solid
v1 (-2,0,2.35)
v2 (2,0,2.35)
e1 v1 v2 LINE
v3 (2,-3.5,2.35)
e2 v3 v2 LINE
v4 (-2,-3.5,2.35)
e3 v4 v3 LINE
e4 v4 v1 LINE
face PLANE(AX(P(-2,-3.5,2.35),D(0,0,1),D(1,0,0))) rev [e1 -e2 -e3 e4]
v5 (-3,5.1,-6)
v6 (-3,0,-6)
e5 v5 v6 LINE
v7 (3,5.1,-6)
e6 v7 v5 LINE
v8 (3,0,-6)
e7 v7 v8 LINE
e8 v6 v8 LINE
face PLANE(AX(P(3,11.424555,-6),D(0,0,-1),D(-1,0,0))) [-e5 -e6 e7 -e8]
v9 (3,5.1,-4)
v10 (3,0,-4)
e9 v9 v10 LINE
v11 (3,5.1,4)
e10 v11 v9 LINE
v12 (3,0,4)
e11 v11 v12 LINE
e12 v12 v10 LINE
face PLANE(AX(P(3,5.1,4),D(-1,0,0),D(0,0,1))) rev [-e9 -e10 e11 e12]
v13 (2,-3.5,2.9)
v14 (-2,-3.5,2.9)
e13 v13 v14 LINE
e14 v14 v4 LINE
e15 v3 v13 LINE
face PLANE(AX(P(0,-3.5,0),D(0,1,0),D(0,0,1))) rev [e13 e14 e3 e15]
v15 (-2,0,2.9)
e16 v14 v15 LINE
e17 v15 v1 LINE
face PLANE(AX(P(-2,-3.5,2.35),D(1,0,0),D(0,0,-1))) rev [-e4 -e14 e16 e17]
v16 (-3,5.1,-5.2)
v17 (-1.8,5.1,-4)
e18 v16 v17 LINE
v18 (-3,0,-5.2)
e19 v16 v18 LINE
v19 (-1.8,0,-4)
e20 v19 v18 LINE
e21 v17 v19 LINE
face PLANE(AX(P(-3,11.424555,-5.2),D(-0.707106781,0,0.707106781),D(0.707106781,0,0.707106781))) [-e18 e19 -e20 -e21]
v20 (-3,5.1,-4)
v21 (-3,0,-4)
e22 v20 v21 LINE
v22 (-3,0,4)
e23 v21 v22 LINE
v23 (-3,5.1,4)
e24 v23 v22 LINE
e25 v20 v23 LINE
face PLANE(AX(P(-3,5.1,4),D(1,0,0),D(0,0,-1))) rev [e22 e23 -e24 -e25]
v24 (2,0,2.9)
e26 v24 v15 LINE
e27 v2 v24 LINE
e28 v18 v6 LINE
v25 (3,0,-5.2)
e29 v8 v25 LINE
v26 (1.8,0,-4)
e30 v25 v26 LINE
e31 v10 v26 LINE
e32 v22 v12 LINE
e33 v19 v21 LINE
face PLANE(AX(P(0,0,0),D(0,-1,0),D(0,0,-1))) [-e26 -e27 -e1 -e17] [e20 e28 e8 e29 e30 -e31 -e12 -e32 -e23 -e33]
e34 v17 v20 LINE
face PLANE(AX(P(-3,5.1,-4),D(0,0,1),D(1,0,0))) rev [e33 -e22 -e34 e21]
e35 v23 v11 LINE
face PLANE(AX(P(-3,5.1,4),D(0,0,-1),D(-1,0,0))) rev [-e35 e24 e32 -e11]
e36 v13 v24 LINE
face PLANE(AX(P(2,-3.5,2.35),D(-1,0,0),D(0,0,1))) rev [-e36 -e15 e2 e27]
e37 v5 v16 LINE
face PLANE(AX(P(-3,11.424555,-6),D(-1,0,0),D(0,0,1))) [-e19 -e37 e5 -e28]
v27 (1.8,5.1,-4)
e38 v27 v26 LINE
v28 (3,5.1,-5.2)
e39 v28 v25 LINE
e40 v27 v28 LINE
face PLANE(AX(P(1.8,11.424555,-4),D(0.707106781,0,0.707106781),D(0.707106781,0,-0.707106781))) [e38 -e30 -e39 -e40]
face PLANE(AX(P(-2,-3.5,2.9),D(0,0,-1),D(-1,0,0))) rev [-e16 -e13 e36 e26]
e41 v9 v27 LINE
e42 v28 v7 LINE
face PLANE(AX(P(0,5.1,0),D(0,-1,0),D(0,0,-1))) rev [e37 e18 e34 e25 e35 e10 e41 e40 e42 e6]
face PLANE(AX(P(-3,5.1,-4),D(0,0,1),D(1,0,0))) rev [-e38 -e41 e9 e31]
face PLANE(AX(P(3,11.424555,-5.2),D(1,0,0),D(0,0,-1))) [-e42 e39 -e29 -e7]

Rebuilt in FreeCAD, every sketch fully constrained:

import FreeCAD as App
import Part
import Sketcher
from FreeCAD import Vector


def add_polygon(sketch, points):
    """Adds a closed chain of lines whose ends are joined by coincident constraints."""
    first, n = sketch.GeometryCount, len(points)
    for a, b in zip(points, points[1:] + points[:1]):
        sketch.addGeometry(Part.LineSegment(App.Vector(*a, 0), App.Vector(*b, 0)), False)
    for i in range(n):
        sketch.addConstraint(Sketcher.Constraint("Coincident", first + i, 2, first + (i + 1) % n, 1))

doc = App.newDocument("Part")
body = doc.addObject("PartDesign::Body", "Body")

# Sketch on XZ plane
sketch1 = body.newObject("Sketcher::SketchObject", "Sketch")
sketch1.AttachmentSupport = (doc.getObject("XZ_Plane"), [""])
sketch1.MapMode = "FlatFace"
add_polygon(sketch1, [(-3, -4), (-3, 4), (3, 4), (3, -4)])  # lines 0-3
sketch1.addConstraint(Sketcher.Constraint("Vertical", 0))
sketch1.addConstraint(Sketcher.Constraint("Horizontal", 1))
sketch1.addConstraint(Sketcher.Constraint("Vertical", 2))
sketch1.addConstraint(Sketcher.Constraint("Horizontal", 3))
sketch1.addConstraint(Sketcher.Constraint("Symmetric", 0, 2, 2, 2, -1, 1))
sketch1.addConstraint(Sketcher.Constraint("DistanceX", 1, 1, 1, 2, 6.0))
sketch1.addConstraint(Sketcher.Constraint("DistanceY", 0, 1, 0, 2, 8.0))
pad1 = body.newObject("PartDesign::Pad", "Pad")
pad1.Profile = sketch1
pad1.Length = 5.1
pad1.Reversed = True

# Sketch on XZ plane
sketch2 = body.newObject("Sketcher::SketchObject", "Sketch001")
sketch2.AttachmentSupport = (doc.getObject("XZ_Plane"), [""])
sketch2.MapMode = "FlatFace"
add_polygon(sketch2, [(-3, -6), (3, -6), (3, -5.2), (1.8, -4), (-1.8, -4), (-3, -5.2)])  # lines 0-5
sketch2.addConstraint(Sketcher.Constraint("Horizontal", 0))
sketch2.addConstraint(Sketcher.Constraint("Vertical", 1))
sketch2.addConstraint(Sketcher.Constraint("Horizontal", 3))
sketch2.addConstraint(Sketcher.Constraint("Vertical", 5))
sketch2.addConstraint(Sketcher.Constraint("Symmetric", 1, 2, 4, 2, -2))
sketch2.addConstraint(Sketcher.Constraint("Perpendicular", 2, 4))
sketch2.addConstraint(Sketcher.Constraint("Equal", 2, 4))
sketch2.addConstraint(Sketcher.Constraint("DistanceX", 0, 1, 0, 2, 6.0))
sketch2.addConstraint(Sketcher.Constraint("DistanceX", 3, 2, 3, 1, 3.6))
sketch2.addConstraint(Sketcher.Constraint("DistanceY", 1, 1, 1, 2, 0.8))
sketch2.addConstraint(Sketcher.Constraint("DistanceY", 0, 2, -1, 1, 6.0))
pad2 = body.newObject("PartDesign::Pad", "Pad001")
pad2.Profile = sketch2
pad2.Length = 5.1
pad2.Reversed = True

# Sketch on XZ plane
sketch3 = body.newObject("Sketcher::SketchObject", "Sketch002")
sketch3.AttachmentSupport = (doc.getObject("XZ_Plane"), [""])
sketch3.MapMode = "FlatFace"
add_polygon(sketch3, [(-2, 2.9), (-2, 2.35), (2, 2.35), (2, 2.9)])  # lines 0-3
sketch3.addConstraint(Sketcher.Constraint("Vertical", 0))
sketch3.addConstraint(Sketcher.Constraint("Horizontal", 1))
sketch3.addConstraint(Sketcher.Constraint("Vertical", 2))
sketch3.addConstraint(Sketcher.Constraint("Horizontal", 3))
sketch3.addConstraint(Sketcher.Constraint("DistanceX", 1, 1, 1, 2, 4.0))
sketch3.addConstraint(Sketcher.Constraint("DistanceX", 0, 2, -1, 1, 2.0))
sketch3.addConstraint(Sketcher.Constraint("DistanceY", 0, 2, 0, 1, 0.55))
sketch3.addConstraint(Sketcher.Constraint("DistanceY", -1, 1, 2, 2, 2.9))
pad3 = body.newObject("PartDesign::Pad", "Pad002")
pad3.Profile = sketch3
pad3.Length = 3.5

doc.recompute()
